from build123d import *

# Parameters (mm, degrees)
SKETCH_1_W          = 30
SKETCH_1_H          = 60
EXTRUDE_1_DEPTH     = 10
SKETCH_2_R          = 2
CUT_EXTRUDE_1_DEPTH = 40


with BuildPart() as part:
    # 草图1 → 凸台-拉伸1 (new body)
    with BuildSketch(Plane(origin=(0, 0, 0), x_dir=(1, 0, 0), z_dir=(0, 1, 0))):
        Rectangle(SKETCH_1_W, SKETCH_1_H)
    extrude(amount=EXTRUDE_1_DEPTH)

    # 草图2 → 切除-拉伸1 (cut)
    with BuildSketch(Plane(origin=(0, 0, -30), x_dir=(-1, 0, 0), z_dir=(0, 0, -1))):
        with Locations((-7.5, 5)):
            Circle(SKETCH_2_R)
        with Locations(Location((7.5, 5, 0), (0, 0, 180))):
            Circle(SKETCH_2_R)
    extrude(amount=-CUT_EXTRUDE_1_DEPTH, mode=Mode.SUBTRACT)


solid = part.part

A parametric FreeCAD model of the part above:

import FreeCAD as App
import Part
import Sketcher

V = App.Vector
Q = App.Units.Quantity


def add_polygon(sketch, points):
    """Adds a closed chain of lines whose ends are joined by coincident constraints."""
    first, n = sketch.GeometryCount, len(points)
    for a, b in zip(points, points[1:] + points[:1]):
        sketch.addGeometry(Part.LineSegment(App.Vector(*a, 0), App.Vector(*b, 0)), False)
    for i in range(n):
        sketch.addConstraint(Sketcher.Constraint("Coincident", first + i, 2, first + (i + 1) % n, 1))

doc = App.newDocument("Part")
body = doc.addObject("PartDesign::Body", "Body")

# Sketch on XZ plane
sketch1 = body.newObject("Sketcher::SketchObject", "Sketch")
sketch1.AttachmentSupport = (doc.getObject("XZ_Plane"), [""])
sketch1.MapMode = "FlatFace"
add_polygon(sketch1, [(-15, -30), (-15, 30), (15, 30), (15, -30)])  # lines 0-3
sketch1.addConstraint(Sketcher.Constraint("Vertical", 0))
sketch1.addConstraint(Sketcher.Constraint("Horizontal", 1))
sketch1.addConstraint(Sketcher.Constraint("Vertical", 2))
sketch1.addConstraint(Sketcher.Constraint("Horizontal", 3))
sketch1.addConstraint(Sketcher.Constraint("Symmetric", 0, 2, 2, 2, -1, 1))
sketch1.addConstraint(Sketcher.Constraint("DistanceX", 1, 1, 1, 2, Q("30 mm")))
sketch1.addConstraint(Sketcher.Constraint("DistanceY", 0, 1, 0, 2, Q("60 mm")))
pad1 = body.newObject("PartDesign::Pad", "Pad")
pad1.Profile = sketch1
pad1.Length = 10
pad1.Reversed = True

# Sketch on XY plane
sketch2 = body.newObject("Sketcher::SketchObject", "Sketch001")
sketch2.AttachmentSupport = (doc.getObject("XY_Plane"), [""])
sketch2.MapMode = "FlatFace"
sketch2.AttachmentOffset = App.Placement(V(0, 0, -30), App.Rotation())
sketch2.addGeometry(Part.Circle(V(7.5, 5, 0), V(0, 0, 1), 2), False)
sketch2.addGeometry(Part.Circle(V(-7.5, 5, 0), V(0, 0, 1), 2), False)
sketch2.addConstraint(Sketcher.Constraint("Equal", 0, 1))
sketch2.addConstraint(Sketcher.Constraint("Symmetric", 0, 3, 1, 3, -2))
sketch2.addConstraint(Sketcher.Constraint("Diameter", 0, Q("4 mm")))
sketch2.addConstraint(Sketcher.Constraint("DistanceY", -1, 1, 0, 3, Q("5 mm")))
sketch2.addConstraint(Sketcher.Constraint("DistanceX", 1, 3, 0, 3, Q("15 mm")))
pocket1 = body.newObject("PartDesign::Pocket", "Pocket")
pocket1.Profile = sketch2
pocket1.Length = 40
pocket1.Reversed = True

doc.recompute()
